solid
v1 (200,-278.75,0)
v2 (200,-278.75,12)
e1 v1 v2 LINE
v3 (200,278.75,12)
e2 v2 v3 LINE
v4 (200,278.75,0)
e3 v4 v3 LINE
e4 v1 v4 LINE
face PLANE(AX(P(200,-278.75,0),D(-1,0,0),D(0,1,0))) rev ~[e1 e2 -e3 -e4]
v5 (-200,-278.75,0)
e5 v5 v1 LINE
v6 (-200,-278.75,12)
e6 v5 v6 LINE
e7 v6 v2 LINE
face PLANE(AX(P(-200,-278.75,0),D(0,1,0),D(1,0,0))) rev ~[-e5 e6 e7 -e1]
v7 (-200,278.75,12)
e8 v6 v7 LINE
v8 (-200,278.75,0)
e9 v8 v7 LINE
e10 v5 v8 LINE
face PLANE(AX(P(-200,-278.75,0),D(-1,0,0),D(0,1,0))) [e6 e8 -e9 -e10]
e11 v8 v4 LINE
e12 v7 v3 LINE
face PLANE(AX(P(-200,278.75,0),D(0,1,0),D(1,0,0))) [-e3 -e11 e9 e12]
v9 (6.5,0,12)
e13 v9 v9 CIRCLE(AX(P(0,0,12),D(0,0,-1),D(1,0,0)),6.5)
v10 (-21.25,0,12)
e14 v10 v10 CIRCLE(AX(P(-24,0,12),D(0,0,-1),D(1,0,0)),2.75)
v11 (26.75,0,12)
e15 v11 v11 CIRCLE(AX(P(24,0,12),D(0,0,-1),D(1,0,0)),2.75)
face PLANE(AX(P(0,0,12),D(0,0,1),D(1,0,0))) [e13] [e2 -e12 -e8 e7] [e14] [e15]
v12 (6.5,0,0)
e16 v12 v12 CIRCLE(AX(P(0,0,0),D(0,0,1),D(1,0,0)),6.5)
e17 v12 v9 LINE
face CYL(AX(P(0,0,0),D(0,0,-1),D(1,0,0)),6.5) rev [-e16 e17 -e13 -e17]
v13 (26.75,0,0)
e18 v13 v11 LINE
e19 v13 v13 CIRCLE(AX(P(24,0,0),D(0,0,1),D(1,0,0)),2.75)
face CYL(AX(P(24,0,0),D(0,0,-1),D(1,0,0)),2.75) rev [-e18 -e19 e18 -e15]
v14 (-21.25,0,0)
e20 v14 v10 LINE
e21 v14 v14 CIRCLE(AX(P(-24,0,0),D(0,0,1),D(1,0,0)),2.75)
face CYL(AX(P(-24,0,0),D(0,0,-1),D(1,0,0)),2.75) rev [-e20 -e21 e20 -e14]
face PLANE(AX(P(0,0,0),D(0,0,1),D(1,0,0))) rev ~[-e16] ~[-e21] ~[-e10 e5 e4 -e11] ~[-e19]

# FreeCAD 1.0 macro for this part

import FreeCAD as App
import Part
import Sketcher

doc = App.newDocument("Part")
params = doc.addObject("Spreadsheet::Sheet", "Params")
for row, (alias, value) in enumerate([
    ("sketch1_width", "400 mm"),
    ("sketch1_height", "557.5 mm"),
    ("pad1_length", "12 mm"),
    ("sketch2_diameter", "13 mm"),
    ("sketch3_diameter", "5.5 mm"),
    ("pocket2_length", "1386.241465 mm"),
], start=1):
    params.set(f"A{row}", alias)
    params.set(f"B{row}", "=" + value)
    params.setAlias(f"B{row}", alias)

body = doc.addObject("PartDesign::Body", "Body")

# Sketch on XY plane
sketch1 = body.newObject("Sketcher::SketchObject", "Sketch")
sketch1.AttachmentSupport = (doc.getObject("XY_Plane"), [""])
sketch1.MapMode = "FlatFace"
sketch1.addGeometry(Part.LineSegment(App.Vector(-200, 278.75, 0), App.Vector(-200, -278.75, 0)), False)
sketch1.addGeometry(Part.LineSegment(App.Vector(-200, -278.75, 0), App.Vector(200, -278.75, 0)), False)
sketch1.addGeometry(Part.LineSegment(App.Vector(200, -278.75, 0), App.Vector(200, 278.75, 0)), False)
sketch1.addGeometry(Part.LineSegment(App.Vector(200, 278.75, 0), App.Vector(-200, 278.75, 0)), False)
sketch1.addConstraint(Sketcher.Constraint("Coincident", 0, 2, 1, 1))
sketch1.addConstraint(Sketcher.Constraint("Coincident", 1, 2, 2, 1))
sketch1.addConstraint(Sketcher.Constraint("Coincident", 2, 2, 3, 1))
sketch1.addConstraint(Sketcher.Constraint("Coincident", 3, 2, 0, 1))
sketch1.addConstraint(Sketcher.Constraint("Vertical", 0))
sketch1.addConstraint(Sketcher.Constraint("Horizontal", 1))
sketch1.addConstraint(Sketcher.Constraint("Vertical", 2))
sketch1.addConstraint(Sketcher.Constraint("Horizontal", 3))
sketch1.addConstraint(Sketcher.Constraint("Symmetric", 0, 2, 2, 2, -1, 1))
sketch1.addConstraint(Sketcher.Constraint("DistanceX", 1, 1, 1, 2, 400.0))
sketch1.addConstraint(Sketcher.Constraint("DistanceY", 0, 2, 0, 1, 557.5))
sketch1.setExpression("Constraints[9]", "Params.sketch1_width")
sketch1.setExpression("Constraints[10]", "Params.sketch1_height")
pad1 = body.newObject("PartDesign::Pad", "Pad")
pad1.Profile = sketch1
pad1.setExpression("Length", "Params.pad1_length")

# Sketch on XY plane
sketch2 = body.newObject("Sketcher::SketchObject", "Sketch001")
sketch2.AttachmentSupport = (doc.getObject("XY_Plane"), [""])
sketch2.MapMode = "FlatFace"
sketch2.addGeometry(Part.Circle(App.Vector(0, 0, 0), App.Vector(0, 0, 1), 6.5), False)
sketch2.addConstraint(Sketcher.Constraint("Coincident", 0, 3, -1, 1))
sketch2.addConstraint(Sketcher.Constraint("Diameter", 0, 13.0))
sketch2.setExpression("Constraints[1]", "Params.sketch2_diameter")
pocket1 = body.newObject("PartDesign::Pocket", "Pocket")
pocket1.Profile = sketch2
pocket1.Type = "ThroughAll"
pocket1.Reversed = True

# Sketch on XY plane
sketch3 = body.newObject("Sketcher::SketchObject", "Sketch002")
sketch3.AttachmentSupport = (doc.getObject("XY_Plane"), [""])
sketch3.MapMode = "FlatFace"
sketch3.addGeometry(Part.Circle(App.Vector(-24, 0, 0), App.Vector(0, 0, 1), 2.75), False)
sketch3.addGeometry(Part.Circle(App.Vector(24, 0, 0), App.Vector(0, 0, 1), 2.75), False)
sketch3.addConstraint(Sketcher.Constraint("Equal", 0, 1))
sketch3.addConstraint(Sketcher.Constraint("Symmetric", 0, 3, 1, 3, -1, 1))
sketch3.addConstraint(Sketcher.Constraint("PointOnObject", 0, 3, -1))
sketch3.addConstraint(Sketcher.Constraint("Diameter", 0, 5.5))
sketch3.addConstraint(Sketcher.Constraint("DistanceX", 0, 3, -1, 1, 24.0))
sketch3.setExpression("Constraints[3]", "Params.sketch3_diameter")
pocket2 = body.newObject("PartDesign::Pocket", "Pocket001")
pocket2.Profile = sketch3
pocket2.setExpression("Length", "Params.pocket2_length")
pocket2.Reversed = True

doc.recompute()
